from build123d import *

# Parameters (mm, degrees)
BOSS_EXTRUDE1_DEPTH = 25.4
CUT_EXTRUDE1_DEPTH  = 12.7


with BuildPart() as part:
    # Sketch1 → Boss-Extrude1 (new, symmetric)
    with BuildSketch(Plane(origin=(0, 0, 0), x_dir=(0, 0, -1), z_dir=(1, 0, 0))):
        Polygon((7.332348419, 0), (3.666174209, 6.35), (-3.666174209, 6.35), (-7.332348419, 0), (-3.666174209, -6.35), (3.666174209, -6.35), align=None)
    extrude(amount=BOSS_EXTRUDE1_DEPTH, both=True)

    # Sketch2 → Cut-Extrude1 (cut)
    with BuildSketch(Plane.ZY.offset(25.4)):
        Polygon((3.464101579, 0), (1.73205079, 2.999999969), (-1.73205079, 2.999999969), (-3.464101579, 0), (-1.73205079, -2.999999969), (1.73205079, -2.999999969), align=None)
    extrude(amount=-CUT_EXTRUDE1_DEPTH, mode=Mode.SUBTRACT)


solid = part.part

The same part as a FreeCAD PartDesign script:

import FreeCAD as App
import Part
import Sketcher
Q = App.Units.Quantity

doc = App.newDocument("Part")
body = doc.addObject("PartDesign::Body", "Body")

# Sketch on YZ plane
sketch1 = body.newObject("Sketcher::SketchObject", "Sketch")
sketch1.AttachmentSupport = (doc.getObject("YZ_Plane"), [""])
sketch1.MapMode = "FlatFace"
sketch1.addGeometry(Part.LineSegment(App.Vector(0, -7, 0), App.Vector(6, -4, 0)), False)
sketch1.addGeometry(Part.LineSegment(App.Vector(6, -4, 0), App.Vector(6, 4, 0)), False)
sketch1.addGeometry(Part.LineSegment(App.Vector(6, 4, 0), App.Vector(0, 7, 0)), False)
sketch1.addGeometry(Part.LineSegment(App.Vector(0, 7, 0), App.Vector(-6, 4, 0)), False)
sketch1.addGeometry(Part.LineSegment(App.Vector(-6, 4, 0), App.Vector(-6, -4, 0)), False)
sketch1.addGeometry(Part.LineSegment(App.Vector(-6, -4, 0), App.Vector(0, -7, 0)), False)
sketch1.addConstraint(Sketcher.Constraint("Coincident", 0, 2, 1, 1))
sketch1.addConstraint(Sketcher.Constraint("Coincident", 1, 2, 2, 1))
sketch1.addConstraint(Sketcher.Constraint("Coincident", 2, 2, 3, 1))
sketch1.addConstraint(Sketcher.Constraint("Coincident", 3, 2, 4, 1))
sketch1.addConstraint(Sketcher.Constraint("Coincident", 4, 2, 5, 1))
sketch1.addConstraint(Sketcher.Constraint("Coincident", 5, 2, 0, 1))
sketch1.addConstraint(Sketcher.Constraint("Vertical", 1))
sketch1.addConstraint(Sketcher.Constraint("Vertical", 4))
sketch1.addConstraint(Sketcher.Constraint("Symmetric", 0, 2, 3, 2, -1, 1))
sketch1.addConstraint(Sketcher.Constraint("Symmetric", 2, 2, 5, 2, -1, 1))
sketch1.addConstraint(Sketcher.Constraint("PointOnObject", 2, 2, -2))
sketch1.addConstraint(Sketcher.Constraint("Parallel", 2, 5))
sketch1.addConstraint(Sketcher.Constraint("Horizontal", 1, 2, 3, 2))
sketch1.addConstraint(Sketcher.Constraint("Angle", 0, Q("30 deg")))
sketch1.addConstraint(Sketcher.Constraint("DistanceX", 3, 2, 1, 2, Q("0.5 in")))
sketch1.addConstraint(Sketcher.Constraint("DistanceY", 1, 1, 1, 2, Q("7.332348 mm")))
pad1 = body.newObject("PartDesign::Pad", "Pad")
pad1.Profile = sketch1
pad1.Length = Q("2 in")
pad1.Midplane = True

# Sketch on YZ plane
sketch2 = body.newObject("Sketcher::SketchObject", "Sketch001")
sketch2.AttachmentSupport = (doc.getObject("YZ_Plane"), [""])
sketch2.MapMode = "FlatFace"
sketch2.AttachmentOffset = App.Placement(App.Vector(0, 0, -1 * 25.4), App.Rotation())
sketch2.addGeometry(Part.LineSegment(App.Vector(0, 3.5, 0), App.Vector(3, 1.7, 0)), False)
sketch2.addGeometry(Part.LineSegment(App.Vector(3, 1.7, 0), App.Vector(3, -1.7, 0)), False)
sketch2.addGeometry(Part.LineSegment(App.Vector(3, -1.7, 0), App.Vector(0, -3.5, 0)), False)
sketch2.addGeometry(Part.LineSegment(App.Vector(0, -3.5, 0), App.Vector(-3, -1.7, 0)), False)
sketch2.addGeometry(Part.LineSegment(App.Vector(-3, -1.7, 0), App.Vector(-3, 1.7, 0)), False)
sketch2.addGeometry(Part.LineSegment(App.Vector(-3, 1.7, 0), App.Vector(0, 3.5, 0)), False)
sketch2.addConstraint(Sketcher.Constraint("Coincident", 0, 2, 1, 1))
sketch2.addConstraint(Sketcher.Constraint("Coincident", 1, 2, 2, 1))
sketch2.addConstraint(Sketcher.Constraint("Coincident", 2, 2, 3, 1))
sketch2.addConstraint(Sketcher.Constraint("Coincident", 3, 2, 4, 1))
sketch2.addConstraint(Sketcher.Constraint("Coincident", 4, 2, 5, 1))
sketch2.addConstraint(Sketcher.Constraint("Coincident", 5, 2, 0, 1))
sketch2.addConstraint(Sketcher.Constraint("Vertical", 1))
sketch2.addConstraint(Sketcher.Constraint("Vertical", 4))
sketch2.addConstraint(Sketcher.Constraint("Symmetric", 0, 2, 3, 2, -1, 1))
sketch2.addConstraint(Sketcher.Constraint("Symmetric", 2, 2, 5, 2, -1, 1))
sketch2.addConstraint(Sketcher.Constraint("PointOnObject", 2, 2, -2))
sketch2.addConstraint(Sketcher.Constraint("Parallel", 2, 5))
sketch2.addConstraint(Sketcher.Constraint("Horizontal", 1, 2, 3, 2))
sketch2.addConstraint(Sketcher.Constraint("Angle", 0, Q("-30 deg")))
sketch2.addConstraint(Sketcher.Constraint("DistanceY", 1, 2, 1, 1, Q("3.464102 mm")))
sketch2.addConstraint(Sketcher.Constraint("Distance", 0, Q("3.464102 mm")))
pocket1 = body.newObject("PartDesign::Pocket", "Pocket")
pocket1.Profile = sketch2
pocket1.Length = Q("0.5 in")
pocket1.Reversed = True

doc.recompute()
